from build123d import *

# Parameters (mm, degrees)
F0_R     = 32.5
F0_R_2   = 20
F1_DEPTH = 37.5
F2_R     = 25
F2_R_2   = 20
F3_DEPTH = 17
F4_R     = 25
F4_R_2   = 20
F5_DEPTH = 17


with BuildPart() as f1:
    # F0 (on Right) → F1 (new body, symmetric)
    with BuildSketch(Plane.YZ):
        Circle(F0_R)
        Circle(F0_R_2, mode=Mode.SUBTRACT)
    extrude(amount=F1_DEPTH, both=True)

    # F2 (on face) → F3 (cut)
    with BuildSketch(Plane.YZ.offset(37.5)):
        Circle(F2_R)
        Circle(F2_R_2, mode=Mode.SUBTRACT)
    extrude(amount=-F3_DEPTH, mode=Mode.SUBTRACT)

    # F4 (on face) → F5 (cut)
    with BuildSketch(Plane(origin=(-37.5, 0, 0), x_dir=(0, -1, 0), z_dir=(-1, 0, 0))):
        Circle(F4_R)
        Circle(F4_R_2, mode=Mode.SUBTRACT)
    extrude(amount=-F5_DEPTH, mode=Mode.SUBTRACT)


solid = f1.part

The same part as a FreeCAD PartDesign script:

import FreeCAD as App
import Part
import Sketcher
from FreeCAD import Vector
Q = App.Units.Quantity

doc = App.newDocument("Part")
body = doc.addObject("PartDesign::Body", "Body")

# Sketch on YZ plane
sketch1 = body.newObject("Sketcher::SketchObject", "Sketch")
sketch1.AttachmentSupport = (doc.getObject("YZ_Plane"), [""])
sketch1.MapMode = "FlatFace"
sketch1.addGeometry(Part.Circle(Vector(0, 0, 0), Vector(0, 0, 1), 32), False)
sketch1.addGeometry(Part.Circle(Vector(0, 0, 0), Vector(0, 0, 1), 20), False)
sketch1.addConstraint(Sketcher.Constraint("Coincident", 0, 3, -1, 1))
sketch1.addConstraint(Sketcher.Constraint("Coincident", 1, 3, -1, 1))
sketch1.addConstraint(Sketcher.Constraint("Diameter", 0, Q("65 mm")))
sketch1.addConstraint(Sketcher.Constraint("Diameter", 1, Q("40 mm")))
pad1 = body.newObject("PartDesign::Pad", "Pad")
pad1.Profile = sketch1
pad1.Length = 75
pad1.Midplane = True

# Sketch on YZ plane
sketch2 = body.newObject("Sketcher::SketchObject", "Sketch001")
sketch2.AttachmentSupport = (doc.getObject("YZ_Plane"), [""])
sketch2.MapMode = "FlatFace"
sketch2.AttachmentOffset = App.Placement(Vector(0, 0, 37.5), App.Rotation())
sketch2.addGeometry(Part.Circle(Vector(0, 0, 0), Vector(0, 0, 1), 25), False)
sketch2.addGeometry(Part.Circle(Vector(0, 0, 0), Vector(0, 0, 1), 20), False)
sketch2.addConstraint(Sketcher.Constraint("Coincident", 0, 3, -1, 1))
sketch2.addConstraint(Sketcher.Constraint("Coincident", 1, 3, -1, 1))
sketch2.addConstraint(Sketcher.Constraint("Diameter", 0, Q("50 mm")))
sketch2.addConstraint(Sketcher.Constraint("Diameter", 1, Q("40 mm")))
pocket1 = body.newObject("PartDesign::Pocket", "Pocket")
pocket1.Profile = sketch2
pocket1.Length = 17

# Sketch on YZ plane
sketch3 = body.newObject("Sketcher::SketchObject", "Sketch002")
sketch3.AttachmentSupport = (doc.getObject("YZ_Plane"), [""])
sketch3.MapMode = "FlatFace"
sketch3.AttachmentOffset = App.Placement(Vector(0, 0, -37.5), App.Rotation())
sketch3.addGeometry(Part.Circle(Vector(0, 0, 0), Vector(0, 0, 1), 25), False)
sketch3.addGeometry(Part.Circle(Vector(0, 0, 0), Vector(0, 0, 1), 20), False)
sketch3.addConstraint(Sketcher.Constraint("Coincident", 0, 3, -1, 1))
sketch3.addConstraint(Sketcher.Constraint("Coincident", 1, 3, -1, 1))
sketch3.addConstraint(Sketcher.Constraint("Diameter", 0, Q("50 mm")))
sketch3.addConstraint(Sketcher.Constraint("Diameter", 1, Q("40 mm")))
pocket2 = body.newObject("PartDesign::Pocket", "Pocket001")
pocket2.Profile = sketch3
pocket2.Length = 17
pocket2.Reversed = True

doc.recompute()
